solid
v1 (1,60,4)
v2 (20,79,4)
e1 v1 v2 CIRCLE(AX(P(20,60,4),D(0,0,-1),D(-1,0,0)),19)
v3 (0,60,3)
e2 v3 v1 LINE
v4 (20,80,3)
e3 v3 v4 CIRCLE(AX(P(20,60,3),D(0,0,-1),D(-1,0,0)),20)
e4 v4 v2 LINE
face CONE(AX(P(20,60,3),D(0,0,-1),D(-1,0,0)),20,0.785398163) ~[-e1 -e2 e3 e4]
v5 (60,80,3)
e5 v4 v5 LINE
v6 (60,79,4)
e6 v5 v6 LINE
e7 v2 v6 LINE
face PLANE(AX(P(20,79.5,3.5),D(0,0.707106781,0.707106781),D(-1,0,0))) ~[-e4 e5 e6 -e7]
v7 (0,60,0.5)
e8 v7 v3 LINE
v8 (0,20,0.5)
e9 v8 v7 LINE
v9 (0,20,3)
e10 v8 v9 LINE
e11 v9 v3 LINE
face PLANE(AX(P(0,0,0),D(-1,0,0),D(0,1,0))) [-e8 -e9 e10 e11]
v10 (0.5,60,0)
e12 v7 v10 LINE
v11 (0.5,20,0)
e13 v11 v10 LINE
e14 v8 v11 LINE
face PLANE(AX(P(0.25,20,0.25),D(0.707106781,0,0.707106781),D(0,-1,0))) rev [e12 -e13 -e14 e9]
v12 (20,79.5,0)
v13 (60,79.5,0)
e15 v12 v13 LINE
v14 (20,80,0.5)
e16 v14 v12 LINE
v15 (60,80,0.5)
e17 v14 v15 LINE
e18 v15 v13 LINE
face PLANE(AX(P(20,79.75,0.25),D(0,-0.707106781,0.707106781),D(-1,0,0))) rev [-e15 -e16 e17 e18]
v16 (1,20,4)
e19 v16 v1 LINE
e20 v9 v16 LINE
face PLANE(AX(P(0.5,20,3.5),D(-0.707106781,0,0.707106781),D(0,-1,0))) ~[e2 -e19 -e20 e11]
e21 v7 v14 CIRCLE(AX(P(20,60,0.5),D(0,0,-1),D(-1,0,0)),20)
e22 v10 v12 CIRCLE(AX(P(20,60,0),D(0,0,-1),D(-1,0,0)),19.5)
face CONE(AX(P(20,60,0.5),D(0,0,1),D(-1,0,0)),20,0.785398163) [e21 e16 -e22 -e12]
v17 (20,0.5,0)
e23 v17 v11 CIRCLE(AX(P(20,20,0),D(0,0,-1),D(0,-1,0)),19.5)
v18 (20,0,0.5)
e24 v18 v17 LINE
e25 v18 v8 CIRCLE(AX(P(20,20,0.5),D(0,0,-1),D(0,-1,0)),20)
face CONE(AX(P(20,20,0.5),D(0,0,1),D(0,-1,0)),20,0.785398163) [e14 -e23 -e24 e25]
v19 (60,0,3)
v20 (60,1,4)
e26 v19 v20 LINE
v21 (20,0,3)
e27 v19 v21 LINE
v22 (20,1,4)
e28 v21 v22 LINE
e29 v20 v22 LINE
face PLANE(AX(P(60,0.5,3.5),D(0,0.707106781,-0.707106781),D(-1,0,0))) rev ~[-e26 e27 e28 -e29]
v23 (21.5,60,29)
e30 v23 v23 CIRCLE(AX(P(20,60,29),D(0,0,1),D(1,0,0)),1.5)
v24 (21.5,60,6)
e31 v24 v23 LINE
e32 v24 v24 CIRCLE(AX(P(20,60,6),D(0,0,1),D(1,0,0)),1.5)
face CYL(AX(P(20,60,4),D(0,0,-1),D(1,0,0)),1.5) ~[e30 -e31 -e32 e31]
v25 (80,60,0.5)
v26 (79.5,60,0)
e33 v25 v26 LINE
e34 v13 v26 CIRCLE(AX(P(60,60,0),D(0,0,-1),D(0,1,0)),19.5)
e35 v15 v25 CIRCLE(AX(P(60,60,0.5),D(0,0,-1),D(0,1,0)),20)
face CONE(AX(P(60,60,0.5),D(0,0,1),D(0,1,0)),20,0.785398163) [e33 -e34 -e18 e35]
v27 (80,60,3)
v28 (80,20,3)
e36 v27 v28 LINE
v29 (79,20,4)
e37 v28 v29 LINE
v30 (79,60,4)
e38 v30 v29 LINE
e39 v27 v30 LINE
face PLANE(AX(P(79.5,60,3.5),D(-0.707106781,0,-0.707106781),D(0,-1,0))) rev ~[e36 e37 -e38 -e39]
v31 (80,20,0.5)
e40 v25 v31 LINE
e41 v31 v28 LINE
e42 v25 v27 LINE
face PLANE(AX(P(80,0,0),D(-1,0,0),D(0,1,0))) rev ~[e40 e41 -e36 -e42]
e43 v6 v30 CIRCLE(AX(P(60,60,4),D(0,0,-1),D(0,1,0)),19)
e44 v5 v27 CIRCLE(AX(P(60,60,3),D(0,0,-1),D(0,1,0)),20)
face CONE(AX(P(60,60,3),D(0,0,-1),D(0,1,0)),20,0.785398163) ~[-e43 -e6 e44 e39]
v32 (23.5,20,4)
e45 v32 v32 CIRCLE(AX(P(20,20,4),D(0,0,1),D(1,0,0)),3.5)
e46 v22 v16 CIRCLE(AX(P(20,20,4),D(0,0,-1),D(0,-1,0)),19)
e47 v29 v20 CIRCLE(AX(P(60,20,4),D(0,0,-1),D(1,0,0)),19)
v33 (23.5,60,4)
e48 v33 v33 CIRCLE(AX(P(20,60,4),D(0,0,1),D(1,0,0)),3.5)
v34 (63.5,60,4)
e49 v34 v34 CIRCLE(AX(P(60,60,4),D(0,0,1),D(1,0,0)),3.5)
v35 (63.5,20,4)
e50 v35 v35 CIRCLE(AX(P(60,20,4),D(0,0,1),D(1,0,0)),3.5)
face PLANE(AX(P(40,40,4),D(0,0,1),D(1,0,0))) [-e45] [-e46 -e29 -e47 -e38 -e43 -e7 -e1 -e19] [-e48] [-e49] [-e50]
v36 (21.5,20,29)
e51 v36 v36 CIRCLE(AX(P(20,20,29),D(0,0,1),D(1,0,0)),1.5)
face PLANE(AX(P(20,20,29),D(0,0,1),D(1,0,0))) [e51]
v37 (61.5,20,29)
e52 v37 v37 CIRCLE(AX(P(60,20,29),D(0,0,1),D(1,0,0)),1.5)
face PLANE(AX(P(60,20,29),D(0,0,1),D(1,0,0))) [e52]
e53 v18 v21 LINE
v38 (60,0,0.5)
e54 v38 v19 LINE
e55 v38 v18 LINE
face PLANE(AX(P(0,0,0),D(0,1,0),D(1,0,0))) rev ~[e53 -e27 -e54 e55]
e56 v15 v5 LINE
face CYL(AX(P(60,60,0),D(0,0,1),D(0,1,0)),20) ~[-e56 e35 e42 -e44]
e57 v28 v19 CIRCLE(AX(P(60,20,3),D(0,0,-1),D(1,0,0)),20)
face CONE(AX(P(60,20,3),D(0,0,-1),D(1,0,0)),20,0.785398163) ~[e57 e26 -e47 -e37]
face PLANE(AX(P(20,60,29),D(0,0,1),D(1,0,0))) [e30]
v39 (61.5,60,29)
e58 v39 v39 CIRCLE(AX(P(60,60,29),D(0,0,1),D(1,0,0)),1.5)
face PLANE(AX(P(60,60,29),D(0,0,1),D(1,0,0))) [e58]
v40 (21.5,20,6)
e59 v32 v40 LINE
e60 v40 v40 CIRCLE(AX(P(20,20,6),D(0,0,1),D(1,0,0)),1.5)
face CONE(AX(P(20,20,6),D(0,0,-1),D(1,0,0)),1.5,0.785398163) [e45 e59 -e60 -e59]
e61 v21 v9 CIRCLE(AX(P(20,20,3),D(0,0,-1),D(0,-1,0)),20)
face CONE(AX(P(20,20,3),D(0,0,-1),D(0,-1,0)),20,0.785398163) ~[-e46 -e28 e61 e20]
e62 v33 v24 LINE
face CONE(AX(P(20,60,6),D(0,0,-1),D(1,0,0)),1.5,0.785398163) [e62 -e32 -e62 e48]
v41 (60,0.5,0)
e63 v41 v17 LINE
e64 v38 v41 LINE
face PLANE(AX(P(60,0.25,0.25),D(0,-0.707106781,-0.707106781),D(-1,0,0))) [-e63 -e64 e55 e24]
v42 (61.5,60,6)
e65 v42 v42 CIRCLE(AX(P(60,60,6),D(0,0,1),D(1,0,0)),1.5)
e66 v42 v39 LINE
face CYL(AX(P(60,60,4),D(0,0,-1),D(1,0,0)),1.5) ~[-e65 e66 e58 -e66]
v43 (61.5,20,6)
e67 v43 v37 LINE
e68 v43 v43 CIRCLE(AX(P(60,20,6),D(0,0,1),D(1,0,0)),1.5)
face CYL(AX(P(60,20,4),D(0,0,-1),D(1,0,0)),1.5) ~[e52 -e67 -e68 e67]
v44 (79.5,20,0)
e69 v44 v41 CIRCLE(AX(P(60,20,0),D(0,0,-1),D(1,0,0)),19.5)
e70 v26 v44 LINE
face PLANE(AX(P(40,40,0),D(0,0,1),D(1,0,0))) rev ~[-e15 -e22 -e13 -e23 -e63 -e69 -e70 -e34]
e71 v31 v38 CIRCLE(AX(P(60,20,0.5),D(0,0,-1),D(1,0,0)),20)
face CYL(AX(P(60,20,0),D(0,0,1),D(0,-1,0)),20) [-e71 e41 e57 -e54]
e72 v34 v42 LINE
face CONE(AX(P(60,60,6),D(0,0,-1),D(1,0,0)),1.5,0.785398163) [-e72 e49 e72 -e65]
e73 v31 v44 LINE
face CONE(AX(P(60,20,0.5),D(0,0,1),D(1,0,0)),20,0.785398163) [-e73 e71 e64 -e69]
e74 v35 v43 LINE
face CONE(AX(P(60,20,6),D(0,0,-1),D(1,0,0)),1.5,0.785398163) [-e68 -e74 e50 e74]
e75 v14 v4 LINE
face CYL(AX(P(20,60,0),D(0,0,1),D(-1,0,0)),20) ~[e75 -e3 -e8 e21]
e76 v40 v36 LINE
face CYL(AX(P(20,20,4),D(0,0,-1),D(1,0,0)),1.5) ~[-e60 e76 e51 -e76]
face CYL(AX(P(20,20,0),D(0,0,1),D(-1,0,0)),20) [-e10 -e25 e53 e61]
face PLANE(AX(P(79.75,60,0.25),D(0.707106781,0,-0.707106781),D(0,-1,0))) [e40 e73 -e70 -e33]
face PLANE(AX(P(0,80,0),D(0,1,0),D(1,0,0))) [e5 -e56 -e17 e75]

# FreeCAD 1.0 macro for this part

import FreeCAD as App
import Part
import Sketcher
Q = App.Units.Quantity


def edges_at(feature, points):
    """Names of the edges that pass closest to the given points."""
    edges = feature.Shape.Edges
    near = lambda p: min(range(len(edges)), key=lambda i: edges[i].distToShape(Part.Vertex(*p))[0])
    return sorted({f"Edge{near(p) + 1}" for p in points})

doc = App.newDocument("Part")
body = doc.addObject("PartDesign::Body", "Body")

# Sketch on XY plane
sketch1 = body.newObject("Sketcher::SketchObject", "Sketch")
sketch1.AttachmentSupport = (doc.getObject("XY_Plane"), [""])
sketch1.MapMode = "FlatFace"
sketch1.addGeometry([
    Part.LineSegment(App.Vector(0, 80, 0), App.Vector(0, 0, 0)),
    Part.LineSegment(App.Vector(0, 0, 0), App.Vector(80, 0, 0)),
    Part.LineSegment(App.Vector(80, 0, 0), App.Vector(80, 80, 0)),
    Part.LineSegment(App.Vector(80, 80, 0), App.Vector(0, 80, 0)),
], False)
sketch1.addConstraint([
    Sketcher.Constraint("Coincident", 0, 2, 1, 1),
    Sketcher.Constraint("Coincident", 1, 2, 2, 1),
    Sketcher.Constraint("Coincident", 2, 2, 3, 1),
    Sketcher.Constraint("Coincident", 3, 2, 0, 1),
    Sketcher.Constraint("Vertical", 0),
    Sketcher.Constraint("Horizontal", 1),
    Sketcher.Constraint("Vertical", 2),
    Sketcher.Constraint("Horizontal", 3),
    Sketcher.Constraint("Coincident", 0, 2, -1, 1),
    Sketcher.Constraint("Equal", 3, 0),
    Sketcher.Constraint("DistanceX", 1, 1, 1, 2, Q("80 mm")),
])
pad1 = body.newObject("PartDesign::Pad", "Pad")
pad1.Profile = sketch1
pad1.Length = 4

# Sketch on XY plane
sketch2 = body.newObject("Sketcher::SketchObject", "Sketch001")
sketch2.AttachmentSupport = (doc.getObject("XY_Plane"), [""])
sketch2.MapMode = "FlatFace"
sketch2.AttachmentOffset = App.Placement(App.Vector(0, 0, 4), App.Rotation())
sketch2.addGeometry([
    Part.Circle(App.Vector(20, 60, 0), App.Vector(0, 0, 1), 1.5),
    Part.Circle(App.Vector(60, 60, 0), App.Vector(0, 0, 1), 1.5),
    Part.Circle(App.Vector(20, 20, 0), App.Vector(0, 0, 1), 1.5),
    Part.Circle(App.Vector(60, 20, 0), App.Vector(0, 0, 1), 1.5),
], False)
sketch2.addConstraint([
    Sketcher.Constraint("Equal", 0, 1),
    Sketcher.Constraint("Equal", 1, 2),
    Sketcher.Constraint("Equal", 2, 3),
    Sketcher.Constraint("Horizontal", 0, 3, 1, 3),
    Sketcher.Constraint("Horizontal", 2, 3, 3, 3),
    Sketcher.Constraint("Vertical", 0, 3, 2, 3),
    Sketcher.Constraint("Vertical", 1, 3, 3, 3),
    Sketcher.Constraint("Diameter", 0, Q("3 mm")),
    Sketcher.Constraint("DistanceX", -1, 1, 0, 3, Q("20 mm")),
    Sketcher.Constraint("DistanceY", -1, 1, 0, 3, Q("60 mm")),
    Sketcher.Constraint("DistanceX", -1, 1, 1, 3, Q("60 mm")),
    Sketcher.Constraint("DistanceY", -1, 1, 2, 3, Q("20 mm")),
])
pad2 = body.newObject("PartDesign::Pad", "Pad001")
pad2.Profile = sketch2
pad2.Length = 25
doc.recompute()

fillet = body.newObject("PartDesign::Fillet", "Fillet")
fillet.Base = (pad2, edges_at(pad2, [
    (80, 0, 2),
    (80, 80, 2),
    (0, 0, 2),
    (0, 80, 2),
]))
fillet.Radius = 20
doc.recompute()

chamfer = body.newObject("PartDesign::Chamfer", "Chamfer")
chamfer.Base = (fillet, edges_at(fillet, [
    (18.5, 20, 4),
    (58.5, 20, 4),
    (18.5, 60, 4),
    (58.5, 60, 4),
]))
chamfer.Size = 2
doc.recompute()

chamfer2 = body.newObject("PartDesign::Chamfer", "Chamfer001")
chamfer2.Base = (chamfer, edges_at(chamfer, [
    (40, 80, 0),
    (5.858, 74.142, 0),
    (74.142, 74.142, 0),
    (0, 40, 0),
    (80, 40, 0),
    (5.858, 5.858, 0),
    (74.142, 5.858, 0),
    (40, 0, 0),
]))
chamfer2.Size = 0.5
doc.recompute()

chamfer3 = body.newObject("PartDesign::Chamfer", "Chamfer002")
chamfer3.Base = (chamfer2, edges_at(chamfer2, [
    (0, 40, 4),
    (5.858, 5.858, 4),
    (40, 0, 4),
    (74.142, 5.858, 4),
    (80, 40, 4),
    (74.142, 74.142, 4),
    (40, 80, 4),
    (5.858, 74.142, 4),
]))
chamfer3.Size = 1

doc.recompute()
